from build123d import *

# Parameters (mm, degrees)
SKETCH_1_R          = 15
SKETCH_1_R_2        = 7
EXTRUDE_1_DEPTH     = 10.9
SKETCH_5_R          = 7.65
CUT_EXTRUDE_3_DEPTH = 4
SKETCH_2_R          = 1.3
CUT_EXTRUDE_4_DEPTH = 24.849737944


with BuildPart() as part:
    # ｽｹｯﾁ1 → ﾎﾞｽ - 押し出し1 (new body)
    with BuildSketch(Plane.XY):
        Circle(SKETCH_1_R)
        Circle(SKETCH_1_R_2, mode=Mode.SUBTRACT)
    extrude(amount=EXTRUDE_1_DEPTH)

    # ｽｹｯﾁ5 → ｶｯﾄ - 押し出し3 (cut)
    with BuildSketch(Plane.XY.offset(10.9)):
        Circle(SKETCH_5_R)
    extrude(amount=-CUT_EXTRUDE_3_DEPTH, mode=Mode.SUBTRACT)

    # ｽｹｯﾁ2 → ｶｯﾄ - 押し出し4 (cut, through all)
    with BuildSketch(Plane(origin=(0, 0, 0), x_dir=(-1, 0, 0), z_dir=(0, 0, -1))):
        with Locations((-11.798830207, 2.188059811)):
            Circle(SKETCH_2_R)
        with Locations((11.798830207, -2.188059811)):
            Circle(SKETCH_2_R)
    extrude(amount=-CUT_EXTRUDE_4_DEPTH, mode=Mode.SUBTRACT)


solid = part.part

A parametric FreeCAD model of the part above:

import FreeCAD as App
import Part
import Sketcher

V = App.Vector

doc = App.newDocument("Part")
body = doc.addObject("PartDesign::Body", "Body")

# Sketch on XY plane
sketch1 = doc.addObject("Sketcher::SketchObject", "Sketch")
body.addObject(sketch1)
sketch1.AttachmentSupport = (doc.XY_Plane, [""])
sketch1.MapMode = "FlatFace"
sketch1.addGeometry([
    Part.Circle(V(0, 0, 0), V(0, 0, 1), 15),
    Part.Circle(V(0, 0, 0), V(0, 0, 1), 7),
], False)
sketch1.addConstraint([
    Sketcher.Constraint("Coincident", 0, 3, -1, 1),
    Sketcher.Constraint("Coincident", 1, 3, -1, 1),
    Sketcher.Constraint("Diameter", 0, 30.0),
    Sketcher.Constraint("Diameter", 1, 14.0),
])
pad1 = doc.addObject("PartDesign::Pad", "Pad")
body.addObject(pad1)
pad1.Profile = sketch1
pad1.Length = 10.9

# Sketch on XY plane
sketch2 = doc.addObject("Sketcher::SketchObject", "Sketch001")
body.addObject(sketch2)
sketch2.AttachmentSupport = (doc.XY_Plane, [""])
sketch2.MapMode = "FlatFace"
sketch2.AttachmentOffset = App.Placement(V(0, 0, 10.9), App.Rotation())
sketch2.addGeometry(Part.Circle(V(0, 0, 0), V(0, 0, 1), 8), False)
sketch2.addConstraint([
    Sketcher.Constraint("Coincident", 0, 3, -1, 1),
    Sketcher.Constraint("Diameter", 0, 15.3),
])
pocket1 = doc.addObject("PartDesign::Pocket", "Pocket")
body.addObject(pocket1)
pocket1.Profile = sketch2
pocket1.Length = 4

# Sketch on XY plane
sketch3 = doc.addObject("Sketcher::SketchObject", "Sketch002")
body.addObject(sketch3)
sketch3.AttachmentSupport = (doc.XY_Plane, [""])
sketch3.MapMode = "FlatFace"
sketch3.addGeometry([
    Part.Circle(V(11.8, 2.2, 0), V(0, 0, 1), 1.3),
    Part.Circle(V(-11.8, -2.2, 0), V(0, 0, 1), 1.3),
], False)
sketch3.addConstraint([
    Sketcher.Constraint("Equal", 0, 1),
    Sketcher.Constraint("Symmetric", 0, 3, 1, 3, -1, 1),
    Sketcher.Constraint("Diameter", 0, 2.6),
    Sketcher.Constraint("DistanceX", -1, 1, 0, 3, 11.79883),
    Sketcher.Constraint("DistanceY", -1, 1, 0, 3, 2.18806),
])
pocket2 = doc.addObject("PartDesign::Pocket", "Pocket001")
body.addObject(pocket2)
pocket2.Profile = sketch3
pocket2.Type = "ThroughAll"
pocket2.Reversed = True

doc.recompute()
